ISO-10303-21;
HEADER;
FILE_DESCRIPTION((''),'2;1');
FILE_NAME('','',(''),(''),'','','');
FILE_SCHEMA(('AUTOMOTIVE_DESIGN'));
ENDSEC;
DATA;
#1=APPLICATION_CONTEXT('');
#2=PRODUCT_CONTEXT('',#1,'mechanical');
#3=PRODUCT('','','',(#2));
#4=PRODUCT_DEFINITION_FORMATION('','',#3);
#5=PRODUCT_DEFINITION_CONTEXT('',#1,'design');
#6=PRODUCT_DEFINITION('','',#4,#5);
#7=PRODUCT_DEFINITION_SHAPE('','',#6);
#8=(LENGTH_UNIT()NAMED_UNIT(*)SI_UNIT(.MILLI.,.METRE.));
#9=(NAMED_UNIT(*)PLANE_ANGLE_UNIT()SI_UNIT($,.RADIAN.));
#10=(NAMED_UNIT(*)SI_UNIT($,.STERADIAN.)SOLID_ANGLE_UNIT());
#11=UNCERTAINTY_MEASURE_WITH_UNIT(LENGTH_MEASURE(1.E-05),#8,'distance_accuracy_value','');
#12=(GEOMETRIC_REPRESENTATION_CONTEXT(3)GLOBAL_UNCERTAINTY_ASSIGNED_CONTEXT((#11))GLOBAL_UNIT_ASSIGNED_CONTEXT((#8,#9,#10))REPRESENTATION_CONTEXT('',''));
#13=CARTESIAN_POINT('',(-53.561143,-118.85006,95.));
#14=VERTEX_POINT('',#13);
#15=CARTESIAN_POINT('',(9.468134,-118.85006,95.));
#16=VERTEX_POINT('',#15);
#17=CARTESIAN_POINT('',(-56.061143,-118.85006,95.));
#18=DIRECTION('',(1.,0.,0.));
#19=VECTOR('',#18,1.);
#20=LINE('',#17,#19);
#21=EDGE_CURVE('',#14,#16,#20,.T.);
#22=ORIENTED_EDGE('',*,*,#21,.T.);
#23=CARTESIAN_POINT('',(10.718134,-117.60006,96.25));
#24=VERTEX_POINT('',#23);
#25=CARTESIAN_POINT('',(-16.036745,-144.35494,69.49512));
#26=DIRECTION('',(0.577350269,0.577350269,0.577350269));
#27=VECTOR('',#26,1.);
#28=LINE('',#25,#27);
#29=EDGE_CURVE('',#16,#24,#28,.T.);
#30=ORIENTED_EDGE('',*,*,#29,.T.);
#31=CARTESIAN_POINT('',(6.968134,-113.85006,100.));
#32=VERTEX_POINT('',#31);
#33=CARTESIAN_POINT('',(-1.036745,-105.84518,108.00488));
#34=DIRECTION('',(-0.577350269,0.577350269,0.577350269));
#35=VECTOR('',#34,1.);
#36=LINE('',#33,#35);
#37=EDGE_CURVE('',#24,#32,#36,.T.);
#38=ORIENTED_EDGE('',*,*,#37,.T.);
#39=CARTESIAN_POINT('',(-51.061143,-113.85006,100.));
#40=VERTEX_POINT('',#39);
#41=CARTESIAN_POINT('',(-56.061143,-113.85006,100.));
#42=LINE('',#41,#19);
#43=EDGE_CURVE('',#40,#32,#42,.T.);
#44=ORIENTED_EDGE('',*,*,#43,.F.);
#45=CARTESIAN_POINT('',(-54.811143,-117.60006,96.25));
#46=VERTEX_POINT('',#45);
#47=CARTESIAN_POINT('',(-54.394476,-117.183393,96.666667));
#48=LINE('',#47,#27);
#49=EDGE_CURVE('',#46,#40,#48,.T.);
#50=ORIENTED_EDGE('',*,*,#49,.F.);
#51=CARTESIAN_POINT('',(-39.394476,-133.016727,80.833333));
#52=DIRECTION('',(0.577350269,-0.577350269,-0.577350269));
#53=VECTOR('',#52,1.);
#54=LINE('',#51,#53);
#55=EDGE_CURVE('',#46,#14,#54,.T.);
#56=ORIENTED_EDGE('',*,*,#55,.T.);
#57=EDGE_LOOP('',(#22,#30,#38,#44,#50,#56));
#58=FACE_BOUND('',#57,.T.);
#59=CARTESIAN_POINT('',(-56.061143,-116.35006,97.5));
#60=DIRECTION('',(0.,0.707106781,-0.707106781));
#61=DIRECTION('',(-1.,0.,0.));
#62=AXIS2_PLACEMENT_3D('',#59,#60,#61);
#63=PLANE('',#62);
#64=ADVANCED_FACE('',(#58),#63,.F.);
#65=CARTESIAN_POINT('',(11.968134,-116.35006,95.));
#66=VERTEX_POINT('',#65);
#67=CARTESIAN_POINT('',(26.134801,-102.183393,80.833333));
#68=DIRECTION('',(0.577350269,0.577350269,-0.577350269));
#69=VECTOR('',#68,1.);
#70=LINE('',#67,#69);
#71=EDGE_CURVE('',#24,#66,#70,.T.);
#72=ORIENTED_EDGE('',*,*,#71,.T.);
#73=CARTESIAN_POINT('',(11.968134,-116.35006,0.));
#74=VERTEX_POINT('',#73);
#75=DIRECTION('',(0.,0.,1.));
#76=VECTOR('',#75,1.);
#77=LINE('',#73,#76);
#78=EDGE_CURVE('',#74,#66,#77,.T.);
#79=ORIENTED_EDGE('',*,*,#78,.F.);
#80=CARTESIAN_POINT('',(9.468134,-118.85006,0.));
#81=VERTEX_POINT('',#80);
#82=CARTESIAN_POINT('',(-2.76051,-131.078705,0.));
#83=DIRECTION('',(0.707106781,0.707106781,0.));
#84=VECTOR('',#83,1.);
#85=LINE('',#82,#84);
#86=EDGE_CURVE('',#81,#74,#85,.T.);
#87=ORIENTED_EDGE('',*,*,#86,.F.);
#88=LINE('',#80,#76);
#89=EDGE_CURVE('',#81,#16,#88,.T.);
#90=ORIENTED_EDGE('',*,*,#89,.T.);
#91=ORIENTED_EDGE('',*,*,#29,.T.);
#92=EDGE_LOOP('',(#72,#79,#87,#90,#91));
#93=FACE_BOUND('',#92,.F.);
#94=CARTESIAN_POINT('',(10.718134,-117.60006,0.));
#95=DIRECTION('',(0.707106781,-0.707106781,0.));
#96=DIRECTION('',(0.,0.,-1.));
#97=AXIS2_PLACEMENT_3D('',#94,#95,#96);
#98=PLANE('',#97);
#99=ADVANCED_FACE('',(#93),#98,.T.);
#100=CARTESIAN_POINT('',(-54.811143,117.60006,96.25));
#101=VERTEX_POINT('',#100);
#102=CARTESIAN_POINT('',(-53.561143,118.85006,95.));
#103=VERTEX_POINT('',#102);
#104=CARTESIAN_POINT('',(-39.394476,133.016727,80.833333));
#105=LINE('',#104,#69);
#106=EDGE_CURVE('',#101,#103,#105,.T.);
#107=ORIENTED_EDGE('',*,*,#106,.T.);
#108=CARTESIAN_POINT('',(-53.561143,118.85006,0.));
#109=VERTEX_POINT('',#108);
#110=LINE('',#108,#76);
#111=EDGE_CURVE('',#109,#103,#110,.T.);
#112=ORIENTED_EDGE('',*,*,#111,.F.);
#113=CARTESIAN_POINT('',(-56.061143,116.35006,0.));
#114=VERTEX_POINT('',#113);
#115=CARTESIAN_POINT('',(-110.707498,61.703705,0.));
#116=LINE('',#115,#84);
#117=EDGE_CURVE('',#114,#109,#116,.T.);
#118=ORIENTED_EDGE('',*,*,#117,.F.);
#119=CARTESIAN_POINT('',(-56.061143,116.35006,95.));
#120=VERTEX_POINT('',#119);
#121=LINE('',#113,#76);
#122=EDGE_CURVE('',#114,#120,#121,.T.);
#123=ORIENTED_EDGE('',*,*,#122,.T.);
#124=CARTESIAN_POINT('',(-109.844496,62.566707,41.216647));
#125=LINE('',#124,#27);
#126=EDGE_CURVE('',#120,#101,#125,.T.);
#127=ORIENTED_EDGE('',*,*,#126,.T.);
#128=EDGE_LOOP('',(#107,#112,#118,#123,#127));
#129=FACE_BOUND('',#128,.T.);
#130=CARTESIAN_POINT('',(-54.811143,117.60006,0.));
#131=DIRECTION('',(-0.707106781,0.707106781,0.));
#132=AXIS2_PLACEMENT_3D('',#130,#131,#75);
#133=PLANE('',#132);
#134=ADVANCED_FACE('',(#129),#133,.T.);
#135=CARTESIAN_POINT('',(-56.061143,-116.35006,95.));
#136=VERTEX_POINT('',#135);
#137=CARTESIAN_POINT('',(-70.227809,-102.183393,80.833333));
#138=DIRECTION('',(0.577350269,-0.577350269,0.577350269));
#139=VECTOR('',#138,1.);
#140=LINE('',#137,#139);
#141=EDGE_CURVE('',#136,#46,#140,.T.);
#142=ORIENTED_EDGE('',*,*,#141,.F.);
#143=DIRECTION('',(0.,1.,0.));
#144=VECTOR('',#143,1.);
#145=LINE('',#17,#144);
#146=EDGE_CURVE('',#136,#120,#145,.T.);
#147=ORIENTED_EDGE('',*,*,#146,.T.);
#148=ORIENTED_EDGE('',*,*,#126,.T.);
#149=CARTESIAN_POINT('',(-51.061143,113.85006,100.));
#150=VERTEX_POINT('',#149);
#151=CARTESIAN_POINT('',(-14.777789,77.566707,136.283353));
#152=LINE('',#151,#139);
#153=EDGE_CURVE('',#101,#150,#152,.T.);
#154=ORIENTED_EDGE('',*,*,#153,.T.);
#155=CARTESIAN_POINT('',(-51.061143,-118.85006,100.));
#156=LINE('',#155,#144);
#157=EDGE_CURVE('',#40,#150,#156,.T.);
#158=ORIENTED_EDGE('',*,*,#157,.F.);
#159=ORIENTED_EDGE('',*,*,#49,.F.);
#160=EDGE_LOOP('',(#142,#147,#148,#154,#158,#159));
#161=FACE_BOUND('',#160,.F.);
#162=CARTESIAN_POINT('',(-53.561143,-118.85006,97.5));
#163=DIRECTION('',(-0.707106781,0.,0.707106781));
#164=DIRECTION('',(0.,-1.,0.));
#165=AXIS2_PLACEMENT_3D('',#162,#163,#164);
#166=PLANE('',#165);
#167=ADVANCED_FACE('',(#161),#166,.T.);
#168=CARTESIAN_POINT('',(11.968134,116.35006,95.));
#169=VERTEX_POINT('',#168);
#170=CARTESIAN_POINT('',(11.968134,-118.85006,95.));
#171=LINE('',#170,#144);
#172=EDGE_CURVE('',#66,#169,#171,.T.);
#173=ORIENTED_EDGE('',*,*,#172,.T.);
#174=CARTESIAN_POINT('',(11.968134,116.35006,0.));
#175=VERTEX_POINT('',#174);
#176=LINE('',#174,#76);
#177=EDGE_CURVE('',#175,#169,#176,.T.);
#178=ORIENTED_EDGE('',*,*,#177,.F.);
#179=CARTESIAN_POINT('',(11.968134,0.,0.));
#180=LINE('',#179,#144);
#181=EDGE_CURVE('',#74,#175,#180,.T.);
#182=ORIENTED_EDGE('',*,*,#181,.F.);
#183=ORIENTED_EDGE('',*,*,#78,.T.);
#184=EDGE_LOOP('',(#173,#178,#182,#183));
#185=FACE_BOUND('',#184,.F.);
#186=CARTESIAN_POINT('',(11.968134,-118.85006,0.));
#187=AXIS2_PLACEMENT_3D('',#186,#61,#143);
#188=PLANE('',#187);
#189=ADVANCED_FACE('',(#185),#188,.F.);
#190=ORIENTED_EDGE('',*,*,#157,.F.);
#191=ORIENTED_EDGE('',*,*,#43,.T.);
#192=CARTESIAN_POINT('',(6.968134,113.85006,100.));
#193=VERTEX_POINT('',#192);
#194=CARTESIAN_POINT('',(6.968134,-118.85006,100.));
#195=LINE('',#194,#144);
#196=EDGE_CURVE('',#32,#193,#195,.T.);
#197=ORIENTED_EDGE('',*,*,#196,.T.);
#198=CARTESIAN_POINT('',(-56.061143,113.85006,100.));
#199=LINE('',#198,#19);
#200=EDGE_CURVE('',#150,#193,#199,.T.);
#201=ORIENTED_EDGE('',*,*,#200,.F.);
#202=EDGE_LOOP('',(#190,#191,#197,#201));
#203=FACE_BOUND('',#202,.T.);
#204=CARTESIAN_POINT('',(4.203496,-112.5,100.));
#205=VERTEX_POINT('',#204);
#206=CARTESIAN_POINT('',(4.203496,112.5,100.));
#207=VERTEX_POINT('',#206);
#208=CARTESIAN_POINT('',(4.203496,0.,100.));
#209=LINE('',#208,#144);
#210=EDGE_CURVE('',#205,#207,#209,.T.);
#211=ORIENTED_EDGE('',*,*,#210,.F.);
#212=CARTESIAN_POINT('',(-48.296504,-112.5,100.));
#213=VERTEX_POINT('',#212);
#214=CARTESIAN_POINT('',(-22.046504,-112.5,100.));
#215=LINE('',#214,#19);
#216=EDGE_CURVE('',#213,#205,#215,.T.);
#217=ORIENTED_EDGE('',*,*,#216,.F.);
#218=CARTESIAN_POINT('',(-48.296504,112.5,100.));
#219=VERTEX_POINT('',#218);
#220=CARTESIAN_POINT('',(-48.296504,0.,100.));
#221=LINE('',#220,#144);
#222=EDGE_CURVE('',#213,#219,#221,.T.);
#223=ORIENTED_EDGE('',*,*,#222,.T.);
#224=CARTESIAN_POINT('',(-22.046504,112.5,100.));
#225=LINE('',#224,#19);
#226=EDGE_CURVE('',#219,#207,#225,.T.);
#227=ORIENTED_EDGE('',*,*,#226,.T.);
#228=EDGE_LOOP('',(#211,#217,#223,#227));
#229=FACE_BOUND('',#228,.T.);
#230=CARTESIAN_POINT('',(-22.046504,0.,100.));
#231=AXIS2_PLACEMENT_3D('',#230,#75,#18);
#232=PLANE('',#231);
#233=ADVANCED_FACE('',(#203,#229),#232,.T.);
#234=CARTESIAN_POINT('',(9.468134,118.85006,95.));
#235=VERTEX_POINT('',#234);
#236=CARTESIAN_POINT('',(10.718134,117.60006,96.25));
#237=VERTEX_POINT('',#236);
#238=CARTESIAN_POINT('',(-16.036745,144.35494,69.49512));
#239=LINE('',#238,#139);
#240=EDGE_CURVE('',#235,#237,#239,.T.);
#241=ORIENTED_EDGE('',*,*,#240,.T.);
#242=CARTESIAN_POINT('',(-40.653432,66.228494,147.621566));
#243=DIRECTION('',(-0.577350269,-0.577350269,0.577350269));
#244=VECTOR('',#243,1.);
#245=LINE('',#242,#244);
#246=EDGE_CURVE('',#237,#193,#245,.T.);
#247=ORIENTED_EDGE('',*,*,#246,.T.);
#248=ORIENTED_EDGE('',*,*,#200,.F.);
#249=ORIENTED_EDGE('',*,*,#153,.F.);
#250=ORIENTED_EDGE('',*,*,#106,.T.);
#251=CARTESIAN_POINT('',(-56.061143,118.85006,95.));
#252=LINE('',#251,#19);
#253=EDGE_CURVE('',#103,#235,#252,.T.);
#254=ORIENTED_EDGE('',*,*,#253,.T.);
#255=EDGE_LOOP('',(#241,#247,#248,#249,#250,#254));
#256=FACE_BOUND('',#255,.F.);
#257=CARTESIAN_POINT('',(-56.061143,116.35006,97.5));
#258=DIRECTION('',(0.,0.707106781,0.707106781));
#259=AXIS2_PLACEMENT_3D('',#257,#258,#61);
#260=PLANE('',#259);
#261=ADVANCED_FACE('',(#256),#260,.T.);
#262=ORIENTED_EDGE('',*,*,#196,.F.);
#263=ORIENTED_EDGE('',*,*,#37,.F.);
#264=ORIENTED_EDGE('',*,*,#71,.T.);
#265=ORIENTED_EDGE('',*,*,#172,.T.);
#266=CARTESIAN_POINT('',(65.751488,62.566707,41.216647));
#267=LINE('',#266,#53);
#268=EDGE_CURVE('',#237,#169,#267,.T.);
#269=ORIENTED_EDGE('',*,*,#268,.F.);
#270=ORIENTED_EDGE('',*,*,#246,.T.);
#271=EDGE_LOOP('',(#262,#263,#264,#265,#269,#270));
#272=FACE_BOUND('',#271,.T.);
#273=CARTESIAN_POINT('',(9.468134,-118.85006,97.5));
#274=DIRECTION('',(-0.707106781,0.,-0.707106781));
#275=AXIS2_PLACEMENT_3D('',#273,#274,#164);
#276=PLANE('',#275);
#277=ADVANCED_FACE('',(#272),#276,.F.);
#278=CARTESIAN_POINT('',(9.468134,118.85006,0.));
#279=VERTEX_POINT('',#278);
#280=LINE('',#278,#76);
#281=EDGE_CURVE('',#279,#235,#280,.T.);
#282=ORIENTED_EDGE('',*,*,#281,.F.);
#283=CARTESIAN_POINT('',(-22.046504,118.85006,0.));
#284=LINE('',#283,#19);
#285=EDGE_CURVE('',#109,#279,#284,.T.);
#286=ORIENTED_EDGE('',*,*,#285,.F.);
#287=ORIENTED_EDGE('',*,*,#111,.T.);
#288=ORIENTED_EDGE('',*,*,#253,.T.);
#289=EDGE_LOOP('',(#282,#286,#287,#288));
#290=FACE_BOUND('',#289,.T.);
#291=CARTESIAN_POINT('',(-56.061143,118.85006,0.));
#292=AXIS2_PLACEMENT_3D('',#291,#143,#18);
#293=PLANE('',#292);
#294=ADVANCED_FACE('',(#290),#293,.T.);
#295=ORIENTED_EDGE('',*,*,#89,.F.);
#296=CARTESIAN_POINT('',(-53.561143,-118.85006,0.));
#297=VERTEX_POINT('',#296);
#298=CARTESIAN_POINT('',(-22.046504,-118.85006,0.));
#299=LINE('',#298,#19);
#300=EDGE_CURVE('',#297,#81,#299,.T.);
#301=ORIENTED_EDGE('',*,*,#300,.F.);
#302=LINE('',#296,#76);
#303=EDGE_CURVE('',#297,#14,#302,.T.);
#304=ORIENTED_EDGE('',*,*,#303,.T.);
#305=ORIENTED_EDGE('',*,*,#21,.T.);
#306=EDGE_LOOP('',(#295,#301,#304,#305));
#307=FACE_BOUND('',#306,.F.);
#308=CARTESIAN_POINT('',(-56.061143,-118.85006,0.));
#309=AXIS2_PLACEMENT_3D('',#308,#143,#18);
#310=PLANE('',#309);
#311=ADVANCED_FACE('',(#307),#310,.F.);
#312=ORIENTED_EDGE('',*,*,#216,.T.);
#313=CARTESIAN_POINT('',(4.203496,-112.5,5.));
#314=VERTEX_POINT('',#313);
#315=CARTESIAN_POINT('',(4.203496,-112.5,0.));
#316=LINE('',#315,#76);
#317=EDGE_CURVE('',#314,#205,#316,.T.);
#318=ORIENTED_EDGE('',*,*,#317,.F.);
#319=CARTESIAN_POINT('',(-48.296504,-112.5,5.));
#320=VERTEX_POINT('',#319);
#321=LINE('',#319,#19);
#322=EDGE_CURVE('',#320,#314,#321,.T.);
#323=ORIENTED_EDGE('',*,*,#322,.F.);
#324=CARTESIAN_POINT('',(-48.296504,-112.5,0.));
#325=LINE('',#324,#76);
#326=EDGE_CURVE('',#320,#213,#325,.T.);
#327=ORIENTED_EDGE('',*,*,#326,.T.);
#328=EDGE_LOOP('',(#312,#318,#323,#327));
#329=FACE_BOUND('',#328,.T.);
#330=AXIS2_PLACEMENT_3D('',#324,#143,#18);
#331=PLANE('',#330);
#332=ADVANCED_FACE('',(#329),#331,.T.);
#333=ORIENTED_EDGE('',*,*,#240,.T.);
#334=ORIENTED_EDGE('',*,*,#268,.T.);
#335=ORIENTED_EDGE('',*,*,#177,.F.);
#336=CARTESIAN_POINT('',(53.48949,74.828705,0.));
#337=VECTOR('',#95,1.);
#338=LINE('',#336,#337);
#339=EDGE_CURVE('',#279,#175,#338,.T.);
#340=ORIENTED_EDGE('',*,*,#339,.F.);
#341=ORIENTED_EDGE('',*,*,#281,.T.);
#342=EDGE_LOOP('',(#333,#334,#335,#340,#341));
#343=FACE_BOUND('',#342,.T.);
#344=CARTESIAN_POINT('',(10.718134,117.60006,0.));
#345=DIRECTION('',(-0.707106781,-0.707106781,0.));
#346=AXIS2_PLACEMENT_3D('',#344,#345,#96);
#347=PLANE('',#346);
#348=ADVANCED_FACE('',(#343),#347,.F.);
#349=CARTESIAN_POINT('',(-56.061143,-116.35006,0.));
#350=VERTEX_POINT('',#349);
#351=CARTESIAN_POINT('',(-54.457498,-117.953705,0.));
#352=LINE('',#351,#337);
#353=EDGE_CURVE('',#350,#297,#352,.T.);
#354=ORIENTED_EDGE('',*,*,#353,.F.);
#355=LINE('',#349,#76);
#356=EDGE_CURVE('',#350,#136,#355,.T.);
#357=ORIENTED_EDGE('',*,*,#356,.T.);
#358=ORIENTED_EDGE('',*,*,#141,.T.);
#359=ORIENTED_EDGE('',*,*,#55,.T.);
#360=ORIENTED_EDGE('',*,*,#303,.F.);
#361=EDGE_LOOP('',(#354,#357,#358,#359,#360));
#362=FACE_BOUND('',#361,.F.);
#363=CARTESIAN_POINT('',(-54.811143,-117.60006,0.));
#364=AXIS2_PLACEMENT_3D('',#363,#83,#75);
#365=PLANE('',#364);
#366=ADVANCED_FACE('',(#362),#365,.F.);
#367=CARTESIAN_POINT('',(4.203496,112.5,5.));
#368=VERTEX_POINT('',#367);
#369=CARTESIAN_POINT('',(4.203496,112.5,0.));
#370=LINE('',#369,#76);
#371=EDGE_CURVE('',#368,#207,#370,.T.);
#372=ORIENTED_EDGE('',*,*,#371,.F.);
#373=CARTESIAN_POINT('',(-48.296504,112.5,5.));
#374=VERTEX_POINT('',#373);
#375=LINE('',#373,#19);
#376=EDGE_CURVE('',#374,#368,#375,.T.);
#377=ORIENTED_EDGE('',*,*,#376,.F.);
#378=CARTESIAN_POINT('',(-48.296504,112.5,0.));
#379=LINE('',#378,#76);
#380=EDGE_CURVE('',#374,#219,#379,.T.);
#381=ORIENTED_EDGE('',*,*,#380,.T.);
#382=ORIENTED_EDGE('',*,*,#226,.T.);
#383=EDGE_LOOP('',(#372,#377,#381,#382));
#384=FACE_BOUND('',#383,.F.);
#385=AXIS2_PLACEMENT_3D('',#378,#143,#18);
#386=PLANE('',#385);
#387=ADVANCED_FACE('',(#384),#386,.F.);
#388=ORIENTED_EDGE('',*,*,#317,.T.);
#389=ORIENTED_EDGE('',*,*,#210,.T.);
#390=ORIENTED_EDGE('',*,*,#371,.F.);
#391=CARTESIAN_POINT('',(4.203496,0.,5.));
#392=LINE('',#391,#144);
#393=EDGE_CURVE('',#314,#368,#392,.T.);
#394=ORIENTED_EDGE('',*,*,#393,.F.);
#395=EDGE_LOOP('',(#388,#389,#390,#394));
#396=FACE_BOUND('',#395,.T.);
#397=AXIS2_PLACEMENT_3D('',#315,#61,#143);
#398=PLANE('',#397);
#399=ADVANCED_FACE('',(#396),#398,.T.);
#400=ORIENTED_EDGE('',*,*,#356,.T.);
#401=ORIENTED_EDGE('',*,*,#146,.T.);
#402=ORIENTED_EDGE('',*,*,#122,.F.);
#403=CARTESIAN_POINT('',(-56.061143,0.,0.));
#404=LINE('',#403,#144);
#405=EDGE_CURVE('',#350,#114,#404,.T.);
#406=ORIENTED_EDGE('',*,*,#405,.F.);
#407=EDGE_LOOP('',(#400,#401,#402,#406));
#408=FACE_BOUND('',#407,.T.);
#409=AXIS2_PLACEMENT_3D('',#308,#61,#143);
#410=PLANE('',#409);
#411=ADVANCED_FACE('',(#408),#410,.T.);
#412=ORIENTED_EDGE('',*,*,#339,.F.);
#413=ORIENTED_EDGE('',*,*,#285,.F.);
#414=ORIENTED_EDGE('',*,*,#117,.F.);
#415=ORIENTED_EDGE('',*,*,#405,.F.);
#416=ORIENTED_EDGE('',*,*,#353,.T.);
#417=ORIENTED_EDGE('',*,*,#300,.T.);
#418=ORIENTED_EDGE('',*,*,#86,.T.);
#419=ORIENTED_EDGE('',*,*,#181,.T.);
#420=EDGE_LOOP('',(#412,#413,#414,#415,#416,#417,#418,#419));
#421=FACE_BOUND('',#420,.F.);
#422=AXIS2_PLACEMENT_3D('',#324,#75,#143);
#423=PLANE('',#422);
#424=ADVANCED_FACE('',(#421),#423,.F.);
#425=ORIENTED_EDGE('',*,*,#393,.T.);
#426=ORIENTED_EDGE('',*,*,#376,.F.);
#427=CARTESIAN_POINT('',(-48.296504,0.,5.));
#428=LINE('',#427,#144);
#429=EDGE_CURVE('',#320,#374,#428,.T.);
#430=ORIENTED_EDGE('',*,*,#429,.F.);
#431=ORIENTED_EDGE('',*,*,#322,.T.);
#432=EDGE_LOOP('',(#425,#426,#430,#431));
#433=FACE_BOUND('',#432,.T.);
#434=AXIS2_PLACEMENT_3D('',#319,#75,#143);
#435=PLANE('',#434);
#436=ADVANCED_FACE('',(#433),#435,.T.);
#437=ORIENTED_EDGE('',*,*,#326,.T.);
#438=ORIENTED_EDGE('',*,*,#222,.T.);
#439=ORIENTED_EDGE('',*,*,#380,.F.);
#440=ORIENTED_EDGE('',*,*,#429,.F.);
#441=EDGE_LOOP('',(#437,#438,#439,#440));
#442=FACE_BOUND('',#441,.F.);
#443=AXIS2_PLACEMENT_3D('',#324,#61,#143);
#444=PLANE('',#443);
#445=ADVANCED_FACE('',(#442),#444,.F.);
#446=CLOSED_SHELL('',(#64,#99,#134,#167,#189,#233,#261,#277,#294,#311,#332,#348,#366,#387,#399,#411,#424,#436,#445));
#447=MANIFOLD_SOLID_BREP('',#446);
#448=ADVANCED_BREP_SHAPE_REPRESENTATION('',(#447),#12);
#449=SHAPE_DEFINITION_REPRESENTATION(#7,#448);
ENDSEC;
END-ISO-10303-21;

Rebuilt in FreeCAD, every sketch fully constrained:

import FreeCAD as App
import Part
import Sketcher
from FreeCAD import Vector


def edges_at(feature, points):
    """Names of the edges that pass closest to the given points."""
    edges = feature.Shape.Edges
    near = lambda p: min(range(len(edges)), key=lambda i: edges[i].distToShape(Part.Vertex(*p))[0])
    return sorted({f"Edge{near(p) + 1}" for p in points})

doc = App.newDocument("Part")
body = doc.addObject("PartDesign::Body", "Body")

# Sketch on XY plane
sketch1 = body.newObject("Sketcher::SketchObject", "Sketch")
sketch1.AttachmentSupport = (doc.getObject("XY_Plane"), [""])
sketch1.MapMode = "FlatFace"
sketch1.addGeometry([
    Part.LineSegment(Vector(-56.061143, 118.85006, 0), Vector(-56.061143, -118.85006, 0)),  # 0
    Part.LineSegment(Vector(-56.061143, -118.85006, 0), Vector(11.968134, -118.85006, 0)),  # 1
    Part.LineSegment(Vector(11.968134, -118.85006, 0), Vector(11.968134, 118.85006, 0)),  # 2
    Part.LineSegment(Vector(11.968134, 118.85006, 0), Vector(-56.061143, 118.85006, 0)),  # 3
    Part.LineSegment(Vector(4.203496, -112.5, 0), Vector(-48.296504, -112.5, 0)),  # 4
    Part.LineSegment(Vector(-48.296504, -112.5, 0), Vector(-48.296504, 112.5, 0)),  # 5
    Part.LineSegment(Vector(-48.296504, 112.5, 0), Vector(4.203496, 112.5, 0)),  # 6
    Part.LineSegment(Vector(4.203496, 112.5, 0), Vector(4.203496, -112.5, 0)),  # 7
], False)
sketch1.addConstraint([
    Sketcher.Constraint("Coincident", 0, 2, 1, 1),
    Sketcher.Constraint("Coincident", 1, 2, 2, 1),
    Sketcher.Constraint("Coincident", 2, 2, 3, 1),
    Sketcher.Constraint("Coincident", 3, 2, 0, 1),
    Sketcher.Constraint("Coincident", 4, 2, 5, 1),
    Sketcher.Constraint("Coincident", 5, 2, 6, 1),
    Sketcher.Constraint("Coincident", 6, 2, 7, 1),
    Sketcher.Constraint("Coincident", 7, 2, 4, 1),
    Sketcher.Constraint("Vertical", 0),
    Sketcher.Constraint("Horizontal", 1),
    Sketcher.Constraint("Vertical", 2),
    Sketcher.Constraint("Horizontal", 3),
    Sketcher.Constraint("Horizontal", 4),
    Sketcher.Constraint("Vertical", 5),
    Sketcher.Constraint("Horizontal", 6),
    Sketcher.Constraint("Vertical", 7),
    Sketcher.Constraint("DistanceY", 5, 1, 5, 2, 225.0),
    Sketcher.Constraint("DistanceX", 4, 2, 4, 1, 52.5),
    Sketcher.Constraint("DistanceY", 4, 2, -1, 1, 112.5),
    Sketcher.Constraint("DistanceY", 0, 2, 0, 1, 237.70012),
    Sketcher.Constraint("DistanceX", 1, 1, 1, 2, 68.029277),
    Sketcher.Constraint("DistanceY", 0, 2, -1, 1, 118.85006),
    Sketcher.Constraint("DistanceX", 0, 2, 4, 2, 7.764639),
    Sketcher.Constraint("DistanceX", 0, 2, -1, 1, 56.061143),
])
pad1 = body.newObject("PartDesign::Pad", "Pad")
pad1.Profile = sketch1
pad1.Length = 100

# Sketch on YZ plane
sketch2 = body.newObject("Sketcher::SketchObject", "Sketch001")
sketch2.AttachmentSupport = (doc.getObject("YZ_Plane"), [""])
sketch2.MapMode = "FlatFace"
sketch2.AttachmentOffset = App.Placement(Vector(0, 0, -48.296504), App.Rotation())
sketch2.addGeometry([
    Part.LineSegment(Vector(-112.5, 5, 0), Vector(-112.5, 0, 0)),
    Part.LineSegment(Vector(-112.5, 0, 0), Vector(112.5, 0, 0)),
    Part.LineSegment(Vector(112.5, 0, 0), Vector(112.5, 5, 0)),
    Part.LineSegment(Vector(112.5, 5, 0), Vector(-112.5, 5, 0)),
], False)
sketch2.addConstraint([
    Sketcher.Constraint("Coincident", 0, 2, 1, 1),
    Sketcher.Constraint("Coincident", 1, 2, 2, 1),
    Sketcher.Constraint("Coincident", 2, 2, 3, 1),
    Sketcher.Constraint("Coincident", 3, 2, 0, 1),
    Sketcher.Constraint("Vertical", 0),
    Sketcher.Constraint("Horizontal", 1),
    Sketcher.Constraint("Vertical", 2),
    Sketcher.Constraint("Horizontal", 3),
    Sketcher.Constraint("Symmetric", 0, 2, 1, 2, -1, 1),
    Sketcher.Constraint("DistanceX", 1, 1, 1, 2, 225.0),
    Sketcher.Constraint("DistanceY", 0, 2, 0, 1, 5.0),
])
pad2 = body.newObject("PartDesign::Pad", "Pad001")
pad2.Profile = sketch2
pad2.Length = 52.5
doc.recompute()

chamfer = body.newObject("PartDesign::Chamfer", "Chamfer")
chamfer.Base = (pad2, edges_at(pad2, [
    (-56.061, 0, 100),
    (-22.047, -118.85, 100),
    (11.968, 0, 100),
    (-22.047, 118.85, 100),
]))
chamfer.Size = 5
doc.recompute()

chamfer2 = body.newObject("PartDesign::Chamfer", "Chamfer001")
chamfer2.Base = (chamfer, edges_at(chamfer, [
    (-56.061, -118.85, 47.5),
    (11.968, -118.85, 47.5),
    (11.968, 118.85, 47.5),
    (-56.061, 118.85, 47.5),
]))
chamfer2.Size = 2.5

doc.recompute()
